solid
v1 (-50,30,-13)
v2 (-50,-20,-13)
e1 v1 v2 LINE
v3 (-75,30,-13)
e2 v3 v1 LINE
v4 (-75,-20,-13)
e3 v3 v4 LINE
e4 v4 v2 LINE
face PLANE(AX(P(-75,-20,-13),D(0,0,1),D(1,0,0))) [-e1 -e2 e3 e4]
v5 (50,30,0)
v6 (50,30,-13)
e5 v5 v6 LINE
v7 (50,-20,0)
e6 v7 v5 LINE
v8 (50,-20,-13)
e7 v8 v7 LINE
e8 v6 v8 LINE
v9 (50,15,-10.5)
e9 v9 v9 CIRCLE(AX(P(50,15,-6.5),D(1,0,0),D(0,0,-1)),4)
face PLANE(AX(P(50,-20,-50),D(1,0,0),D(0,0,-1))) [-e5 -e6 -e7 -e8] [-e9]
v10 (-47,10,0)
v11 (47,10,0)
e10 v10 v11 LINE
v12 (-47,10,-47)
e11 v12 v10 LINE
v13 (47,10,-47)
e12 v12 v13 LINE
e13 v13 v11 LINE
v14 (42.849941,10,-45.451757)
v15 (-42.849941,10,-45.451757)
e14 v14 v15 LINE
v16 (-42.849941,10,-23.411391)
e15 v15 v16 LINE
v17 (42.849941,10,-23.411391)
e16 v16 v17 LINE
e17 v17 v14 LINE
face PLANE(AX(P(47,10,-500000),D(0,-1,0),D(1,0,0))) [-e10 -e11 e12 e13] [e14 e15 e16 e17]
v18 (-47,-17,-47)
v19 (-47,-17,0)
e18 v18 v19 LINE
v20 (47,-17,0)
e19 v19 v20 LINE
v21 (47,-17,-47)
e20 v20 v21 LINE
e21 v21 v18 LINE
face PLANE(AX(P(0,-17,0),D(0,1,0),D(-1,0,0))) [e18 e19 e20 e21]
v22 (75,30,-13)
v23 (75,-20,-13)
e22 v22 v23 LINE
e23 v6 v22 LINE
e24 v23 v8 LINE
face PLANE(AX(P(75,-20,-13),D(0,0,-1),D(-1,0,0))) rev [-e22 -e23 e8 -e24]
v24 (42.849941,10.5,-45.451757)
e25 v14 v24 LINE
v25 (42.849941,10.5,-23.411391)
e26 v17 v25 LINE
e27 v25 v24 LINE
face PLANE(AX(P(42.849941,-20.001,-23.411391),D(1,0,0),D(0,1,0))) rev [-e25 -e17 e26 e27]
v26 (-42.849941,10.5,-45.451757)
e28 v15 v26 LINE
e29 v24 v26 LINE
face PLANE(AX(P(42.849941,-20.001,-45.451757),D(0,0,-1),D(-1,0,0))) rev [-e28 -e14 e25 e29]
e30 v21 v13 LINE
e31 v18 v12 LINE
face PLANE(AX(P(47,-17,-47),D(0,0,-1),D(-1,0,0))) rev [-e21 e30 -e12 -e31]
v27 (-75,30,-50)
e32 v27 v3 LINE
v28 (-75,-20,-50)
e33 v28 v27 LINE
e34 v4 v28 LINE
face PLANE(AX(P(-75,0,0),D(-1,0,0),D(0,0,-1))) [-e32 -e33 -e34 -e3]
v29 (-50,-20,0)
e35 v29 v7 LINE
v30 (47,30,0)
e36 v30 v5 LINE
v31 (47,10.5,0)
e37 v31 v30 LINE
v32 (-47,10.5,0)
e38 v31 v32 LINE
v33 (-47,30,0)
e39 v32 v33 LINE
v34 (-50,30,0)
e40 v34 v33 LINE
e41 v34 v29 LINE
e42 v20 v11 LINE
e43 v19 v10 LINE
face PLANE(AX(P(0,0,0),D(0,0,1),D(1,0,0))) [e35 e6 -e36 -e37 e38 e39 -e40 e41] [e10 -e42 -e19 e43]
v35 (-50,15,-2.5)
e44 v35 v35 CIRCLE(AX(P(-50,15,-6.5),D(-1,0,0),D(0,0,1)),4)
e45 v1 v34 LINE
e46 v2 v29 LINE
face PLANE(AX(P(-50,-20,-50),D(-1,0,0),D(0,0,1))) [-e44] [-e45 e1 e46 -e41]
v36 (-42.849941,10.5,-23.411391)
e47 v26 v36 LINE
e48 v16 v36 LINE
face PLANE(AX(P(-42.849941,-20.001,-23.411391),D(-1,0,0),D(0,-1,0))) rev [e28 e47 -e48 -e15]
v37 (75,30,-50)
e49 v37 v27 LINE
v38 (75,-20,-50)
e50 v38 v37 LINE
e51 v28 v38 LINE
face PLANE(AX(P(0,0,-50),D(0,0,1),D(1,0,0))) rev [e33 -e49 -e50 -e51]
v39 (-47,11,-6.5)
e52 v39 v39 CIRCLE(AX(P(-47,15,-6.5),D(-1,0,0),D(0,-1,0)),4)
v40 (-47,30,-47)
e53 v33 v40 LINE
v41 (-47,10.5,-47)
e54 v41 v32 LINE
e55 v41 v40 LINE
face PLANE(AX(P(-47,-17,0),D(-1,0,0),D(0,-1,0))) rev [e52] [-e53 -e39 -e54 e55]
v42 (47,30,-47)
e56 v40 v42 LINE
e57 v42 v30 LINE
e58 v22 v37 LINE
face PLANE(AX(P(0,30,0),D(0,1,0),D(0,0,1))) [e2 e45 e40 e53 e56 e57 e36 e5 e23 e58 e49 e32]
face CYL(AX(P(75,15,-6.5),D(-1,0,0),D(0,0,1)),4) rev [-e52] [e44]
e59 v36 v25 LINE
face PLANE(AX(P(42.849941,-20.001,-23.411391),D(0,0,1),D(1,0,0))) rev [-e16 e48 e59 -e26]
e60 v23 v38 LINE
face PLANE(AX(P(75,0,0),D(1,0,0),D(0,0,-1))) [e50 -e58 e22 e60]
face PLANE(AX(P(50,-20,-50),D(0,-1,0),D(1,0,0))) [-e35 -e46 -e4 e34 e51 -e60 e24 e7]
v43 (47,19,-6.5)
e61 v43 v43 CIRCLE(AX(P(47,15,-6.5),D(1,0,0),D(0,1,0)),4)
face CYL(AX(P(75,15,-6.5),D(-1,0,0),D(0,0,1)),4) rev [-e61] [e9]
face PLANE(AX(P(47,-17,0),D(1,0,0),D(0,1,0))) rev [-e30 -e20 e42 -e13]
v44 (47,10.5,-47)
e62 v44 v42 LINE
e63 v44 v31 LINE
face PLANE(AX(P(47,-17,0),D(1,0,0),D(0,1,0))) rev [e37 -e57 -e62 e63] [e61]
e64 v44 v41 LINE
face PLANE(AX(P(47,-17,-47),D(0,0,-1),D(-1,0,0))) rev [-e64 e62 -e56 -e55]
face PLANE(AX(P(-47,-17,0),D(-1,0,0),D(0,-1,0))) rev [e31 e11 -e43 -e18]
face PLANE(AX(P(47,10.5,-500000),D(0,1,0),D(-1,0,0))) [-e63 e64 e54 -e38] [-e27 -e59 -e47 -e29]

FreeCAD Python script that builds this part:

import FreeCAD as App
import Part
import Sketcher
from FreeCAD import Vector
Q = App.Units.Quantity

doc = App.newDocument("Part")
params = doc.addObject("Spreadsheet::Sheet", "Params")
for row, (alias, value) in enumerate([
    ("sketch1_width", "100 mm"),
    ("sketch1_height", "40 mm"),
    ("pad1_length", "50 mm"),
    ("sketch2_width", "94 mm"),
    ("sketch2_height", "47 mm"),
    ("pocket1_length", "37 mm"),
    ("sketch3_width", "40 mm"),
    ("sketch3_height", "37 mm"),
    ("pad2_length", "25 mm"),
    ("sketch4_diameter", "8 mm"),
    ("sketch5_width", "94 mm"),
    ("sketch5_width2", "3 mm"),
    ("sketch5_width3", "25 mm"),
    ("sketch5_height", "47 mm"),
    ("sketch5_height2", "13 mm"),
    ("pad3_length", "10 mm"),
    ("sketch6_width", "94 mm"),
    ("sketch6_height", "0.5 mm"),
], start=1):
    params.set(f"A{row}", alias)
    params.set(f"B{row}", "=" + value)
    params.setAlias(f"B{row}", alias)

body = doc.addObject("PartDesign::Body", "Body")

sketch1 = body.newObject("Sketcher::SketchObject", "Sketch")
sketch1.AttachmentSupport = (doc.getObject("XY_Plane"), [""])
sketch1.MapMode = "FlatFace"
sketch1.addGeometry(Part.LineSegment(Vector(-50, 20, 0), Vector(-50, -20, 0)), False)
sketch1.addGeometry(Part.LineSegment(Vector(-50, -20, 0), Vector(50, -20, 0)), False)
sketch1.addGeometry(Part.LineSegment(Vector(50, -20, 0), Vector(50, 20, 0)), False)
sketch1.addGeometry(Part.LineSegment(Vector(50, 20, 0), Vector(-50, 20, 0)), False)
sketch1.addConstraint(Sketcher.Constraint("Coincident", 0, 2, 1, 1))
sketch1.addConstraint(Sketcher.Constraint("Coincident", 1, 2, 2, 1))
sketch1.addConstraint(Sketcher.Constraint("Coincident", 2, 2, 3, 1))
sketch1.addConstraint(Sketcher.Constraint("Coincident", 3, 2, 0, 1))
sketch1.addConstraint(Sketcher.Constraint("Vertical", 0))
sketch1.addConstraint(Sketcher.Constraint("Horizontal", 1))
sketch1.addConstraint(Sketcher.Constraint("Vertical", 2))
sketch1.addConstraint(Sketcher.Constraint("Horizontal", 3))
sketch1.addConstraint(Sketcher.Constraint("Symmetric", 0, 2, 2, 2, -1, 1))
sketch1.addConstraint(Sketcher.Constraint("DistanceX", 1, 1, 1, 2, Q("100 mm")))
sketch1.addConstraint(Sketcher.Constraint("DistanceY", 0, 2, 0, 1, Q("40 mm")))
sketch1.setExpression("Constraints[9]", "Params.sketch1_width")
sketch1.setExpression("Constraints[10]", "Params.sketch1_height")
pad1 = body.newObject("PartDesign::Pad", "Pad")
pad1.Profile = sketch1
pad1.setExpression("Length", "Params.pad1_length")
pad1.Reversed = True

sketch2 = body.newObject("Sketcher::SketchObject", "Sketch001")
sketch2.AttachmentSupport = (doc.getObject("XZ_Plane"), [""])
sketch2.MapMode = "FlatFace"
sketch2.AttachmentOffset = App.Placement(Vector(0, 0, -20), App.Rotation())
sketch2.addGeometry(Part.LineSegment(Vector(-47, -47, 0), Vector(-47, 0, 0)), False)
sketch2.addGeometry(Part.LineSegment(Vector(-47, 0, 0), Vector(47, 0, 0)), False)
sketch2.addGeometry(Part.LineSegment(Vector(47, 0, 0), Vector(47, -47, 0)), False)
sketch2.addGeometry(Part.LineSegment(Vector(47, -47, 0), Vector(-47, -47, 0)), False)
sketch2.addConstraint(Sketcher.Constraint("Coincident", 0, 2, 1, 1))
sketch2.addConstraint(Sketcher.Constraint("Coincident", 1, 2, 2, 1))
sketch2.addConstraint(Sketcher.Constraint("Coincident", 2, 2, 3, 1))
sketch2.addConstraint(Sketcher.Constraint("Coincident", 3, 2, 0, 1))
sketch2.addConstraint(Sketcher.Constraint("Vertical", 0))
sketch2.addConstraint(Sketcher.Constraint("Horizontal", 1))
sketch2.addConstraint(Sketcher.Constraint("Vertical", 2))
sketch2.addConstraint(Sketcher.Constraint("Horizontal", 3))
sketch2.addConstraint(Sketcher.Constraint("Symmetric", 0, 2, 1, 2, -1, 1))
sketch2.addConstraint(Sketcher.Constraint("DistanceX", 1, 1, 1, 2, Q("94 mm")))
sketch2.addConstraint(Sketcher.Constraint("DistanceY", 0, 1, 0, 2, Q("47 mm")))
sketch2.setExpression("Constraints[9]", "Params.sketch2_width")
sketch2.setExpression("Constraints[10]", "Params.sketch2_height")
pocket1 = body.newObject("PartDesign::Pocket", "Pocket")
pocket1.Profile = sketch2
pocket1.setExpression("Length", "Params.pocket1_length")
pocket1.Reversed = True

sketch3 = body.newObject("Sketcher::SketchObject", "Sketch002")
sketch3.AttachmentSupport = (doc.getObject("YZ_Plane"), [""])
sketch3.MapMode = "FlatFace"
sketch3.AttachmentOffset = App.Placement(Vector(0, 0, 50), App.Rotation())
sketch3.addGeometry(Part.LineSegment(Vector(20, -13, 0), Vector(-20, -13, 0)), False)
sketch3.addGeometry(Part.LineSegment(Vector(-20, -13, 0), Vector(-20, -50, 0)), False)
sketch3.addGeometry(Part.LineSegment(Vector(-20, -50, 0), Vector(20, -50, 0)), False)
sketch3.addGeometry(Part.LineSegment(Vector(20, -50, 0), Vector(20, -13, 0)), False)
sketch3.addConstraint(Sketcher.Constraint("Coincident", 0, 2, 1, 1))
sketch3.addConstraint(Sketcher.Constraint("Coincident", 1, 2, 2, 1))
sketch3.addConstraint(Sketcher.Constraint("Coincident", 2, 2, 3, 1))
sketch3.addConstraint(Sketcher.Constraint("Coincident", 3, 2, 0, 1))
sketch3.addConstraint(Sketcher.Constraint("Horizontal", 0))
sketch3.addConstraint(Sketcher.Constraint("Vertical", 1))
sketch3.addConstraint(Sketcher.Constraint("Horizontal", 2))
sketch3.addConstraint(Sketcher.Constraint("Vertical", 3))
sketch3.addConstraint(Sketcher.Constraint("DistanceX", 0, 2, 0, 1, Q("40 mm")))
sketch3.addConstraint(Sketcher.Constraint("DistanceY", 1, 2, 1, 1, Q("37 mm")))
sketch3.addConstraint(Sketcher.Constraint("DistanceX", 0, 2, -1, 1, Q("20 mm")))
sketch3.addConstraint(Sketcher.Constraint("DistanceY", 0, 2, -1, 1, Q("13 mm")))
sketch3.setExpression("Constraints[8]", "Params.sketch3_width")
sketch3.setExpression("Constraints[9]", "Params.sketch3_height")
pad2 = body.newObject("PartDesign::Pad", "Pad001")
pad2.Profile = sketch3
pad2.setExpression("Length", "Params.pad2_length")
doc.recompute()

mirrored = body.newObject("PartDesign::Mirrored", "Mirrored")
mirrored.Originals = [pad2]
mirrored.MirrorPlane = (doc.getObject("YZ_Plane"), [""])
body.Tip = mirrored

sketch4 = body.newObject("Sketcher::SketchObject", "Sketch003")
sketch4.AttachmentSupport = (doc.getObject("YZ_Plane"), [""])
sketch4.MapMode = "FlatFace"
sketch4.AttachmentOffset = App.Placement(Vector(0, 0, -50), App.Rotation())
sketch4.addGeometry(Part.Circle(Vector(15, -6.5, 0), Vector(0, 0, 1), 4), False)
sketch4.addConstraint(Sketcher.Constraint("Diameter", 0, Q("8 mm")))
sketch4.addConstraint(Sketcher.Constraint("DistanceX", -1, 1, 0, 3, Q("15 mm")))
sketch4.addConstraint(Sketcher.Constraint("DistanceY", 0, 3, -1, 1, Q("6.5 mm")))
sketch4.setExpression("Constraints[0]", "Params.sketch4_diameter")
pocket2 = body.newObject("PartDesign::Pocket", "Pocket001")
pocket2.Profile = sketch4
pocket2.Type = "ThroughAll"
pocket2.Reversed = True

sketch5 = body.newObject("Sketcher::SketchObject", "Sketch004")
sketch5.AttachmentSupport = (doc.getObject("XZ_Plane"), [""])
sketch5.MapMode = "FlatFace"
sketch5.AttachmentOffset = App.Placement(Vector(0, 0, -20), App.Rotation())
sketch5.addGeometry(Part.LineSegment(Vector(-47, 0, 0), Vector(-47, -47, 0)), False)
sketch5.addGeometry(Part.LineSegment(Vector(-47, -47, 0), Vector(47, -47, 0)), False)
sketch5.addGeometry(Part.LineSegment(Vector(47, -47, 0), Vector(47, 0, 0)), False)
sketch5.addGeometry(Part.LineSegment(Vector(47, 0, 0), Vector(50, 0, 0)), False)
sketch5.addGeometry(Part.LineSegment(Vector(50, 0, 0), Vector(50, -13, 0)), False)
sketch5.addGeometry(Part.LineSegment(Vector(50, -13, 0), Vector(75, -13, 0)), False)
sketch5.addGeometry(Part.LineSegment(Vector(75, -13, 0), Vector(75, -50, 0)), False)
sketch5.addGeometry(Part.LineSegment(Vector(75, -50, 0), Vector(-75, -50, 0)), False)
sketch5.addGeometry(Part.LineSegment(Vector(-75, -50, 0), Vector(-75, -13, 0)), False)
sketch5.addGeometry(Part.LineSegment(Vector(-75, -13, 0), Vector(-50, -13, 0)), False)
sketch5.addGeometry(Part.LineSegment(Vector(-50, -13, 0), Vector(-50, 0, 0)), False)
sketch5.addGeometry(Part.LineSegment(Vector(-50, 0, 0), Vector(-47, 0, 0)), False)
sketch5.addConstraint(Sketcher.Constraint("Coincident", 0, 2, 1, 1))
sketch5.addConstraint(Sketcher.Constraint("Coincident", 1, 2, 2, 1))
sketch5.addConstraint(Sketcher.Constraint("Coincident", 2, 2, 3, 1))
sketch5.addConstraint(Sketcher.Constraint("Coincident", 3, 2, 4, 1))
sketch5.addConstraint(Sketcher.Constraint("Coincident", 4, 2, 5, 1))
sketch5.addConstraint(Sketcher.Constraint("Coincident", 5, 2, 6, 1))
sketch5.addConstraint(Sketcher.Constraint("Coincident", 6, 2, 7, 1))
sketch5.addConstraint(Sketcher.Constraint("Coincident", 7, 2, 8, 1))
sketch5.addConstraint(Sketcher.Constraint("Coincident", 8, 2, 9, 1))
sketch5.addConstraint(Sketcher.Constraint("Coincident", 9, 2, 10, 1))
sketch5.addConstraint(Sketcher.Constraint("Coincident", 10, 2, 11, 1))
sketch5.addConstraint(Sketcher.Constraint("Coincident", 11, 2, 0, 1))
sketch5.addConstraint(Sketcher.Constraint("Vertical", 0))
sketch5.addConstraint(Sketcher.Constraint("Horizontal", 1))
sketch5.addConstraint(Sketcher.Constraint("Vertical", 2))
sketch5.addConstraint(Sketcher.Constraint("Horizontal", 3))
sketch5.addConstraint(Sketcher.Constraint("Vertical", 4))
sketch5.addConstraint(Sketcher.Constraint("Horizontal", 5))
sketch5.addConstraint(Sketcher.Constraint("Vertical", 6))
sketch5.addConstraint(Sketcher.Constraint("Horizontal", 7))
sketch5.addConstraint(Sketcher.Constraint("Vertical", 8))
sketch5.addConstraint(Sketcher.Constraint("Horizontal", 9))
sketch5.addConstraint(Sketcher.Constraint("Vertical", 10))
sketch5.addConstraint(Sketcher.Constraint("Horizontal", 11))
sketch5.addConstraint(Sketcher.Constraint("Symmetric", 3, 2, 10, 2, -1, 1))
sketch5.addConstraint(Sketcher.Constraint("Symmetric", 5, 2, 8, 2, -2))
sketch5.addConstraint(Sketcher.Constraint("Symmetric", 2, 2, 11, 2, -2))
sketch5.addConstraint(Sketcher.Constraint("DistanceX", 1, 1, 1, 2, Q("94 mm")))
sketch5.addConstraint(Sketcher.Constraint("DistanceX", 3, 1, 3, 2, Q("3 mm")))
sketch5.addConstraint(Sketcher.Constraint("DistanceX", 5, 1, 5, 2, Q("25 mm")))
sketch5.addConstraint(Sketcher.Constraint("DistanceY", 0, 2, 0, 1, Q("47 mm")))
sketch5.addConstraint(Sketcher.Constraint("DistanceY", 4, 2, 4, 1, Q("13 mm")))
sketch5.addConstraint(Sketcher.Constraint("DistanceY", 6, 2, 6, 1, Q("37 mm")))
sketch5.setExpression("Constraints[27]", "Params.sketch5_width")
sketch5.setExpression("Constraints[28]", "Params.sketch5_width2")
sketch5.setExpression("Constraints[29]", "Params.sketch5_width3")
sketch5.setExpression("Constraints[30]", "Params.sketch5_height")
sketch5.setExpression("Constraints[31]", "Params.sketch5_height2")
pad3 = body.newObject("PartDesign::Pad", "Pad002")
pad3.Profile = sketch5
pad3.setExpression("Length", "Params.pad3_length")
pad3.Reversed = True

sketch6 = body.newObject("Sketcher::SketchObject", "Sketch005")
sketch6.AttachmentSupport = (doc.getObject("XY_Plane"), [""])
sketch6.MapMode = "FlatFace"
sketch6.addGeometry(Part.LineSegment(Vector(-47, 10.5, 0), Vector(-47, 10, 0)), False)
sketch6.addGeometry(Part.LineSegment(Vector(-47, 10, 0), Vector(47, 10, 0)), False)
sketch6.addGeometry(Part.LineSegment(Vector(47, 10, 0), Vector(47, 10.5, 0)), False)
sketch6.addGeometry(Part.LineSegment(Vector(47, 10.5, 0), Vector(-47, 10.5, 0)), False)
sketch6.addConstraint(Sketcher.Constraint("Coincident", 0, 2, 1, 1))
sketch6.addConstraint(Sketcher.Constraint("Coincident", 1, 2, 2, 1))
sketch6.addConstraint(Sketcher.Constraint("Coincident", 2, 2, 3, 1))
sketch6.addConstraint(Sketcher.Constraint("Coincident", 3, 2, 0, 1))
sketch6.addConstraint(Sketcher.Constraint("Vertical", 0))
sketch6.addConstraint(Sketcher.Constraint("Horizontal", 1))
sketch6.addConstraint(Sketcher.Constraint("Vertical", 2))
sketch6.addConstraint(Sketcher.Constraint("Horizontal", 3))
sketch6.addConstraint(Sketcher.Constraint("DistanceX", 1, 1, 1, 2, Q("94 mm")))
sketch6.addConstraint(Sketcher.Constraint("DistanceY", 0, 2, 0, 1, Q("0.5 mm")))
sketch6.addConstraint(Sketcher.Constraint("DistanceX", 0, 2, -1, 1, Q("47 mm")))
sketch6.addConstraint(Sketcher.Constraint("DistanceY", -1, 1, 0, 2, Q("10 mm")))
sketch6.setExpression("Constraints[8]", "Params.sketch6_width")
sketch6.setExpression("Constraints[9]", "Params.sketch6_height")
pad4 = body.newObject("PartDesign::Pad", "Pad003")
pad4.Profile = sketch6
pad4.Type = "UpToFirst"
pad4.Reversed = True

sketch7 = body.newObject("Sketcher::SketchObject", "Sketch006")
sketch7.AttachmentSupport = (doc.getObject("XZ_Plane"), [""])
sketch7.MapMode = "FlatFace"
sketch7.AttachmentOffset = App.Placement(Vector(0, 0, -10.5), App.Rotation())
sketch7.addGeometry(Part.LineSegment(Vector(-43, -45, 0), Vector(-43, -23, 0)), False)
sketch7.addGeometry(Part.LineSegment(Vector(-43, -23, 0), Vector(43, -23, 0)), False)
sketch7.addGeometry(Part.LineSegment(Vector(43, -23, 0), Vector(43, -45, 0)), False)
sketch7.addGeometry(Part.LineSegment(Vector(43, -45, 0), Vector(-43, -45, 0)), False)
sketch7.addConstraint(Sketcher.Constraint("Coincident", 0, 2, 1, 1))
sketch7.addConstraint(Sketcher.Constraint("Coincident", 1, 2, 2, 1))
sketch7.addConstraint(Sketcher.Constraint("Coincident", 2, 2, 3, 1))
sketch7.addConstraint(Sketcher.Constraint("Coincident", 3, 2, 0, 1))
sketch7.addConstraint(Sketcher.Constraint("Vertical", 0))
sketch7.addConstraint(Sketcher.Constraint("Horizontal", 1))
sketch7.addConstraint(Sketcher.Constraint("Vertical", 2))
sketch7.addConstraint(Sketcher.Constraint("Horizontal", 3))
sketch7.addConstraint(Sketcher.Constraint("DistanceX", 1, 1, 1, 2, Q("85.699882 mm")))
sketch7.addConstraint(Sketcher.Constraint("DistanceY", 0, 1, 0, 2, Q("22.040366 mm")))
sketch7.addConstraint(Sketcher.Constraint("DistanceX", 0, 2, -1, 1, Q("42.849941 mm")))
sketch7.addConstraint(Sketcher.Constraint("DistanceY", 0, 2, -1, 1, Q("23.411391 mm")))
pocket3 = body.newObject("PartDesign::Pocket", "Pocket002")
pocket3.Profile = sketch7
pocket3.Type = "UpToFirst"
pocket3.Reversed = True

doc.recompute()
